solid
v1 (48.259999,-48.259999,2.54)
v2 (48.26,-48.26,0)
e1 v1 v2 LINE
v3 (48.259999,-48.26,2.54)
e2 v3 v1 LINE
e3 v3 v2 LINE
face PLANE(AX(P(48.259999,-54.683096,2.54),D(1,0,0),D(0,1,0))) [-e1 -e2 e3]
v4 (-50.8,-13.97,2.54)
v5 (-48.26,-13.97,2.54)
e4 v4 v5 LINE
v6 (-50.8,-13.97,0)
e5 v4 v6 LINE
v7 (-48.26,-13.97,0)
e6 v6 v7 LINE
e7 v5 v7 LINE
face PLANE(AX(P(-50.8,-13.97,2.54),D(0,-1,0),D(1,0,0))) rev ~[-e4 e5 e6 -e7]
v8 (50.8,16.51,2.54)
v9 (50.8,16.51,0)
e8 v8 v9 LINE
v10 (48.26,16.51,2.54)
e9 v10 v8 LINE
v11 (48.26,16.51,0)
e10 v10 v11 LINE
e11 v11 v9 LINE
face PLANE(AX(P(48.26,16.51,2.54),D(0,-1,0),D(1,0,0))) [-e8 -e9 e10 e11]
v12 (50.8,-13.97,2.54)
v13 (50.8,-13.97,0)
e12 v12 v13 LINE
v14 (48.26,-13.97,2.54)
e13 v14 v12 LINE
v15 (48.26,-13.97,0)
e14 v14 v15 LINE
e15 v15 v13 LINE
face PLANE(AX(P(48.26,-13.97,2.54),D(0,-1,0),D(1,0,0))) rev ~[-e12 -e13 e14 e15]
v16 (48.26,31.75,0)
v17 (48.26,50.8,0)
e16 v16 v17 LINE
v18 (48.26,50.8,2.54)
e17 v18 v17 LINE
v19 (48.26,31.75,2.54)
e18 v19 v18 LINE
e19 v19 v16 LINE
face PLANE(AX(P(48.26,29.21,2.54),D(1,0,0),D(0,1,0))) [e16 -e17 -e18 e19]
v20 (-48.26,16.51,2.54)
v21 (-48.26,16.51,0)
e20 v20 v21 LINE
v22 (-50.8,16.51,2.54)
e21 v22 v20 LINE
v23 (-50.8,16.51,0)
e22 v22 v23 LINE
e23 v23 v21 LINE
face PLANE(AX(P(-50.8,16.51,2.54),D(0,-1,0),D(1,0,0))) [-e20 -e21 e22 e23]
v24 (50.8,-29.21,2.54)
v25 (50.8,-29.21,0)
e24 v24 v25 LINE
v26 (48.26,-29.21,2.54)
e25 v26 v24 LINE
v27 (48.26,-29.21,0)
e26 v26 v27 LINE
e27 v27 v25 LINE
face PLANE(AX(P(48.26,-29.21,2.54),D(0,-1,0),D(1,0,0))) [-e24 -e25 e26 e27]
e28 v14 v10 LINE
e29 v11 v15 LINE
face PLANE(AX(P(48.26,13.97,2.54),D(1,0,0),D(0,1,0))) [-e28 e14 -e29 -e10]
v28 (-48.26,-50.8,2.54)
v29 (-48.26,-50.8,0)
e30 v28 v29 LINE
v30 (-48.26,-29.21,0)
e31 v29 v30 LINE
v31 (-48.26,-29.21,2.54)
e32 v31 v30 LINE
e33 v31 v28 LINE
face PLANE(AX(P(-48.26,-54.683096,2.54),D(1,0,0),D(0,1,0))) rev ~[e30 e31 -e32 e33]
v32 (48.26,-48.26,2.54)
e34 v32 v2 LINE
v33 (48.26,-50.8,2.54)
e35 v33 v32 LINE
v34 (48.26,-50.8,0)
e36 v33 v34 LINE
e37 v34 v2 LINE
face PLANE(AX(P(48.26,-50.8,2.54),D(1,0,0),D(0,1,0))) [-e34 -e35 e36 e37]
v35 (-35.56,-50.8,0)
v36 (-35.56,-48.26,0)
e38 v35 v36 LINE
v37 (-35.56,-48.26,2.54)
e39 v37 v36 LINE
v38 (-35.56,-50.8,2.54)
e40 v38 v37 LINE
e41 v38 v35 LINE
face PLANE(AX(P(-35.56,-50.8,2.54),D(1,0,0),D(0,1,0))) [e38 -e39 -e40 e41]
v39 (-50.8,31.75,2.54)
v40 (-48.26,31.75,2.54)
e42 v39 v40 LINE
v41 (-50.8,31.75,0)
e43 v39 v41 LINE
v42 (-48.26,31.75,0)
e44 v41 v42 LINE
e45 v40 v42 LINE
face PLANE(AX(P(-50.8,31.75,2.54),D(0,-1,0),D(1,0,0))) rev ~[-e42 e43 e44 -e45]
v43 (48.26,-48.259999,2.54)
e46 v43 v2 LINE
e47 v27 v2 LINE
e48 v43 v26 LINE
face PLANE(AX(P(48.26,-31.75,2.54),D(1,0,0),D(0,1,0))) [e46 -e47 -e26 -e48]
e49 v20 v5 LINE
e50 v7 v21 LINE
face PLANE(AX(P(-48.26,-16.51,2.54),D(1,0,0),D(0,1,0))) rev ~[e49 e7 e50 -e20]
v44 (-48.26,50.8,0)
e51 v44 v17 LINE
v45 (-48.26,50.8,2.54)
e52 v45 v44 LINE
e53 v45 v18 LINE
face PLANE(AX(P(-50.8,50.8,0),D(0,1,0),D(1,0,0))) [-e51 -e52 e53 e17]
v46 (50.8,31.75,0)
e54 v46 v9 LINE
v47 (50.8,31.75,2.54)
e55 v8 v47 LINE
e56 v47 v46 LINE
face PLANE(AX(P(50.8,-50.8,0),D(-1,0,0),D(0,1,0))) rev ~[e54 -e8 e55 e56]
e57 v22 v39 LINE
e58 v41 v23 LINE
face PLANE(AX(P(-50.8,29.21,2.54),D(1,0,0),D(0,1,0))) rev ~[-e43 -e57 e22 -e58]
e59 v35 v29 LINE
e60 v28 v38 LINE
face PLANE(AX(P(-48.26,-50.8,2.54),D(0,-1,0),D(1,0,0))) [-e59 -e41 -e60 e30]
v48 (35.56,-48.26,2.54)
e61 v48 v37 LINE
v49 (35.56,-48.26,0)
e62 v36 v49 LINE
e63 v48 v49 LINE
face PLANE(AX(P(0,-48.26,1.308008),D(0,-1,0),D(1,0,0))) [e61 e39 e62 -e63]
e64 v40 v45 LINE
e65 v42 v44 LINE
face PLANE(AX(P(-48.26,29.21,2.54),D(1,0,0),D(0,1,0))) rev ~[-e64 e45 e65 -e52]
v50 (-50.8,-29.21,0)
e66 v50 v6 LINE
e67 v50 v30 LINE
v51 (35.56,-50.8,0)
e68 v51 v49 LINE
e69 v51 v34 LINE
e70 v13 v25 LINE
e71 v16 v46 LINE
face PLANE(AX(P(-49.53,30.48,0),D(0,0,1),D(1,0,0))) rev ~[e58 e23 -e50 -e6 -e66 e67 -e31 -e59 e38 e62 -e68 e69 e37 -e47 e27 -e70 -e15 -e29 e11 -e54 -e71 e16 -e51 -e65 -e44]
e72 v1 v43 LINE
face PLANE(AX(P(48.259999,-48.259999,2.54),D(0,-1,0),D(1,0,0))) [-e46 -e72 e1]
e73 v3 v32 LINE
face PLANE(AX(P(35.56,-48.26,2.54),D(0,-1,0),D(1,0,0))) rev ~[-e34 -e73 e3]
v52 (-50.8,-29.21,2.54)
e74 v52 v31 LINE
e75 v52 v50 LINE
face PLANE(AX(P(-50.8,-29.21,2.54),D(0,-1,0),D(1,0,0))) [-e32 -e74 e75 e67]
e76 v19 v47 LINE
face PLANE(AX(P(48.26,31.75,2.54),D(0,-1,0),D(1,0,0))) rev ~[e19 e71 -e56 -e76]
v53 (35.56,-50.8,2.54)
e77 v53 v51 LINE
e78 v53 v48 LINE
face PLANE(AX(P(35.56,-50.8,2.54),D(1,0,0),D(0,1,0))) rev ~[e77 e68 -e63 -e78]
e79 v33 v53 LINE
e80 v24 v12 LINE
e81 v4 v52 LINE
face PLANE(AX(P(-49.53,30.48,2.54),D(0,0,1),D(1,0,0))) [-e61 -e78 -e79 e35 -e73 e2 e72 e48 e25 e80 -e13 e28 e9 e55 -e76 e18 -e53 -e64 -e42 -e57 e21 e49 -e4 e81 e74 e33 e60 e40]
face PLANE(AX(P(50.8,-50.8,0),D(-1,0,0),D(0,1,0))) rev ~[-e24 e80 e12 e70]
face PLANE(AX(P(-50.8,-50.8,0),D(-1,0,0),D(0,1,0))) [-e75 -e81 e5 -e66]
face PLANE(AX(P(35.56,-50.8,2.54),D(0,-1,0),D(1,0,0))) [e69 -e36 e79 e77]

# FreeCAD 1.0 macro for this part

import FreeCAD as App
import Part
import Sketcher
from FreeCAD import Vector
Q = App.Units.Quantity


def add_polygon(sketch, points):
    """Adds a closed chain of lines whose ends are joined by coincident constraints."""
    first, n = sketch.GeometryCount, len(points)
    for a, b in zip(points, points[1:] + points[:1]):
        sketch.addGeometry(Part.LineSegment(App.Vector(*a, 0), App.Vector(*b, 0)), False)
    for i in range(n):
        sketch.addConstraint(Sketcher.Constraint("Coincident", first + i, 2, first + (i + 1) % n, 1))

doc = App.newDocument("Part")
body = doc.addObject("PartDesign::Body", "Body")

sketch1 = body.newObject("Sketcher::SketchObject", "Sketch")
sketch1.AttachmentSupport = (doc.getObject("XY_Plane"), [""])
sketch1.MapMode = "FlatFace"
add_polygon(sketch1, [(-51, 51), (-51, -51), (51, -51), (51, 51)])
sketch1.addConstraint([
    Sketcher.Constraint("Vertical", 0),
    Sketcher.Constraint("Horizontal", 1),
    Sketcher.Constraint("Vertical", 2),
    Sketcher.Constraint("Horizontal", 3),
    Sketcher.Constraint("Symmetric", 0, 2, 2, 2, -1, 1),
    Sketcher.Constraint("Equal", 3, 0),
    Sketcher.Constraint("DistanceX", 1, 1, 1, 2, Q("4 in")),
])
pad1 = body.newObject("PartDesign::Pad", "Pad")
pad1.Profile = sketch1
pad1.Length = Q("0.1 in")

sketch2 = body.newObject("Sketcher::SketchObject", "Sketch001")
sketch2.AttachmentSupport = (doc.getObject("XZ_Plane"), [""])
sketch2.MapMode = "FlatFace"
sketch2.AttachmentOffset = App.Placement(Vector(0, 0, 2 * 25.4), App.Rotation())
add_polygon(sketch2, [(-41.9, 2.5), (-39.4, 0), (39.4, 0), (41.9, 2.5)])
sketch2.addConstraint([
    Sketcher.Constraint("Horizontal", 1),
    Sketcher.Constraint("Horizontal", 3),
    Sketcher.Constraint("Symmetric", 0, 2, 1, 2, -1, 1),
    Sketcher.Constraint("Perpendicular", 0, 2),
    Sketcher.Constraint("Equal", 0, 2),
    Sketcher.Constraint("DistanceX", 1, 1, 1, 2, Q("3.1 in")),
    Sketcher.Constraint("DistanceX", 3, 2, 3, 1, Q("3.3 in")),
])
pocket1 = body.newObject("PartDesign::Pocket", "Pocket")
pocket1.Profile = sketch2
pocket1.Length = Q("0.1 in")

sketch3 = body.newObject("Sketcher::SketchObject", "Sketch002")
sketch3.AttachmentSupport = (doc.getObject("XY_Plane"), [""])
sketch3.MapMode = "FlatFace"
sketch3.AttachmentOffset = App.Placement(Vector(0, 0, 0.1 * 25.4), App.Rotation())
add_polygon(sketch3, [(-50.8, -31.8), (-50.8, -48.3), (-48.3, -48.3), (-48.3, -31.8)])
add_polygon(sketch3, [(-50.8, 14), (-50.8, -16.5), (-48.3, -16.5), (-48.3, 14)])
add_polygon(sketch3, [(-50.8, 50.8), (-50.8, 29.2), (-48.3, 29.2), (-48.3, 50.8)])
add_polygon(sketch3, [(48.3, -31.8), (48.3, -48.3), (50.8, -48.3), (50.8, -31.8)])
add_polygon(sketch3, [(48.3, 14), (48.3, -16.5), (50.8, -16.5), (50.8, 14)])
add_polygon(sketch3, [(48.3, 50.8), (48.3, 29.2), (50.8, 29.2), (50.8, 50.8)])
sketch3.addConstraint([
    Sketcher.Constraint("Vertical", 0),
    Sketcher.Constraint("Horizontal", 1),
    Sketcher.Constraint("Vertical", 2),
    Sketcher.Constraint("Horizontal", 3),
    Sketcher.Constraint("Vertical", 4),
    Sketcher.Constraint("Horizontal", 5),
    Sketcher.Constraint("Vertical", 6),
    Sketcher.Constraint("Horizontal", 7),
    Sketcher.Constraint("Vertical", 8),
    Sketcher.Constraint("Horizontal", 9),
    Sketcher.Constraint("Vertical", 10),
    Sketcher.Constraint("Horizontal", 11),
    Sketcher.Constraint("Vertical", 12),
    Sketcher.Constraint("Horizontal", 13),
    Sketcher.Constraint("Vertical", 14),
    Sketcher.Constraint("Horizontal", 15),
    Sketcher.Constraint("Vertical", 16),
    Sketcher.Constraint("Horizontal", 17),
    Sketcher.Constraint("Vertical", 18),
    Sketcher.Constraint("Horizontal", 19),
    Sketcher.Constraint("Vertical", 20),
    Sketcher.Constraint("Horizontal", 21),
    Sketcher.Constraint("Vertical", 22),
    Sketcher.Constraint("Horizontal", 23),
    Sketcher.Constraint("Symmetric", 1, 2, 12, 2, -2),
    Sketcher.Constraint("Symmetric", 3, 2, 14, 2, -2),
    Sketcher.Constraint("Symmetric", 5, 2, 16, 2, -2),
    Sketcher.Constraint("Symmetric", 7, 2, 18, 2, -2),
    Sketcher.Constraint("Symmetric", 9, 2, 20, 2, -2),
    Sketcher.Constraint("Symmetric", 11, 2, 22, 2, -2),
    Sketcher.Constraint("Vertical", 3, 2, 4, 2),
    Sketcher.Constraint("Vertical", 2, 2, 5, 2),
    Sketcher.Constraint("Vertical", 7, 2, 8, 2),
    Sketcher.Constraint("Vertical", 6, 2, 9, 2),
    Sketcher.Constraint("DistanceX", 1, 1, 1, 2, Q("0.1 in")),
    Sketcher.Constraint("DistanceY", 4, 2, 4, 1, Q("1.2 in")),
    Sketcher.Constraint("DistanceX", 0, 2, -1, 1, Q("2 in")),
    Sketcher.Constraint("DistanceY", -1, 1, 10, 2, Q("2 in")),
    Sketcher.Constraint("DistanceY", 0, 2, 0, 1, Q("0.65 in")),
    Sketcher.Constraint("DistanceY", 8, 2, 8, 1, Q("0.85 in")),
    Sketcher.Constraint("DistanceY", 0, 2, -1, 1, Q("1.9 in")),
    Sketcher.Constraint("DistanceY", 3, 2, 4, 2, Q("0.6 in")),
])
pocket2 = body.newObject("PartDesign::Pocket", "Pocket001")
pocket2.Profile = sketch3
pocket2.Length = Q("1 in")

sketch4 = body.newObject("Sketcher::SketchObject", "Sketch003")
sketch4.AttachmentSupport = (doc.getObject("XY_Plane"), [""])
sketch4.MapMode = "FlatFace"
sketch4.AttachmentOffset = App.Placement(Vector(0, 0, 0.1 * 25.4), App.Rotation())
add_polygon(sketch4, [(48, -48), (48, -55), (56, -55), (56, -48)])
add_polygon(sketch4, [(-55, -48), (-55, -55), (-48, -55), (-48, -48)])
sketch4.addConstraint([
    Sketcher.Constraint("Vertical", 0),
    Sketcher.Constraint("Horizontal", 1),
    Sketcher.Constraint("Vertical", 2),
    Sketcher.Constraint("Horizontal", 3),
    Sketcher.Constraint("Vertical", 4),
    Sketcher.Constraint("Horizontal", 5),
    Sketcher.Constraint("Vertical", 6),
    Sketcher.Constraint("Horizontal", 7),
    Sketcher.Constraint("Symmetric", 0, 2, 5, 2, -2),
    Sketcher.Constraint("Horizontal", 3, 2, 6, 2),
    Sketcher.Constraint("DistanceX", -1, 1, 0, 2, Q("1.9 in")),
    Sketcher.Constraint("DistanceY", 2, 2, -1, 1, Q("1.9 in")),
    Sketcher.Constraint("DistanceX", 5, 1, 5, 2, Q("6.710898 mm")),
    Sketcher.Constraint("DistanceX", 1, 1, 1, 2, Q("8.149925 mm")),
    Sketcher.Constraint("DistanceY", 0, 2, 0, 1, Q("6.423097 mm")),
])
pocket3 = body.newObject("PartDesign::Pocket", "Pocket002")
pocket3.Profile = sketch4
pocket3.Length = Q("1 in")

sketch5 = body.newObject("Sketcher::SketchObject", "Sketch004")
sketch5.AttachmentSupport = (doc.getObject("XY_Plane"), [""])
sketch5.MapMode = "FlatFace"
sketch5.AttachmentOffset = App.Placement(Vector(0, 0, 0.1 * 25.4), App.Rotation())
add_polygon(sketch5, [(35.6, -48.3), (35.6, -50.8), (48.3, -50.8), (48.3, -48.3)])
add_polygon(sketch5, [(-48.3, -48.3), (-48.3, -50.8), (-35.6, -50.8), (-35.6, -48.3)])
sketch5.addConstraint([
    Sketcher.Constraint("Vertical", 0),
    Sketcher.Constraint("Horizontal", 1),
    Sketcher.Constraint("Vertical", 2),
    Sketcher.Constraint("Horizontal", 3),
    Sketcher.Constraint("Vertical", 4),
    Sketcher.Constraint("Horizontal", 5),
    Sketcher.Constraint("Vertical", 6),
    Sketcher.Constraint("Horizontal", 7),
    Sketcher.Constraint("Symmetric", 1, 2, 4, 2, -2),
    Sketcher.Constraint("Symmetric", 3, 2, 6, 2, -2),
    Sketcher.Constraint("DistanceX", 1, 1, 1, 2, Q("0.5 in")),
    Sketcher.Constraint("DistanceY", 0, 2, 0, 1, Q("0.1 in")),
    Sketcher.Constraint("DistanceY", 0, 2, -1, 1, Q("2 in")),
    Sketcher.Constraint("DistanceX", -1, 1, 0, 2, Q("1.4 in")),
])
pad2 = body.newObject("PartDesign::Pad", "Pad001")
pad2.Profile = sketch5
pad2.Length = Q("0.1 in")
pad2.Reversed = True

sketch6 = body.newObject("Sketcher::SketchObject", "Sketch005")
sketch6.AttachmentSupport = (doc.getObject("XY_Plane"), [""])
sketch6.MapMode = "FlatFace"
sketch6.AttachmentOffset = App.Placement(Vector(0, 0, 0.1 * 25.4), App.Rotation())
add_polygon(sketch6, [(-50.8, 31.8), (-50.8, 29.2), (-48.3, 29.2), (-48.3, 31.8)])
add_polygon(sketch6, [(-50.8, -14), (-50.8, -16.5), (-48.3, -16.5), (-48.3, -14)])
add_polygon(sketch6, [(48.3, -14), (48.3, -16.5), (50.8, -16.5), (50.8, -14)])
add_polygon(sketch6, [(48.3, 31.8), (48.3, 29.2), (50.8, 29.2), (50.8, 31.8)])
sketch6.addConstraint([
    Sketcher.Constraint("Vertical", 0),
    Sketcher.Constraint("Horizontal", 1),
    Sketcher.Constraint("Vertical", 2),
    Sketcher.Constraint("Horizontal", 3),
    Sketcher.Constraint("Vertical", 4),
    Sketcher.Constraint("Horizontal", 5),
    Sketcher.Constraint("Vertical", 6),
    Sketcher.Constraint("Horizontal", 7),
    Sketcher.Constraint("Vertical", 8),
    Sketcher.Constraint("Horizontal", 9),
    Sketcher.Constraint("Vertical", 10),
    Sketcher.Constraint("Horizontal", 11),
    Sketcher.Constraint("Vertical", 12),
    Sketcher.Constraint("Horizontal", 13),
    Sketcher.Constraint("Vertical", 14),
    Sketcher.Constraint("Horizontal", 15),
    Sketcher.Constraint("Symmetric", 5, 2, 8, 2, -2),
    Sketcher.Constraint("Symmetric", 7, 2, 10, 2, -2),
    Sketcher.Constraint("Symmetric", 1, 2, 12, 2, -2),
    Sketcher.Constraint("Symmetric", 3, 2, 14, 2, -2),
    Sketcher.Constraint("Vertical", 3, 2, 4, 2),
    Sketcher.Constraint("Vertical", 2, 2, 5, 2),
    Sketcher.Constraint("Equal", 15, 0),
    Sketcher.Constraint("Equal", 2, 4),
    Sketcher.Constraint("DistanceX", 1, 1, 1, 2, Q("0.1 in")),
    Sketcher.Constraint("DistanceX", 0, 2, -1, 1, Q("2 in")),
    Sketcher.Constraint("DistanceY", 4, 2, 0, 2, Q("1.8 in")),
    Sketcher.Constraint("DistanceY", -1, 1, 0, 2, Q("1.15 in")),
])
pad3 = body.newObject("PartDesign::Pad", "Pad002")
pad3.Profile = sketch6
pad3.Length = Q("0.1 in")
pad3.Reversed = True

sketch7 = body.newObject("Sketcher::SketchObject", "Sketch006")
sketch7.AttachmentSupport = (doc.getObject("XY_Plane"), [""])
sketch7.MapMode = "FlatFace"
sketch7.AttachmentOffset = App.Placement(Vector(0, 0, 0.1 * 25.4), App.Rotation())
add_polygon(sketch7, [(48.3, -29.2), (48.3, -31.8), (50.8, -31.8), (50.8, -29.2)])
add_polygon(sketch7, [(48.3, 16.5), (48.3, 14), (50.8, 14), (50.8, 16.5)])
add_polygon(sketch7, [(-50.8, -29.2), (-50.8, -31.8), (-48.3, -31.8), (-48.3, -29.2)])
add_polygon(sketch7, [(-50.8, 16.5), (-50.8, 14), (-48.3, 14), (-48.3, 16.5)])
sketch7.addConstraint([
    Sketcher.Constraint("Vertical", 0),
    Sketcher.Constraint("Horizontal", 1),
    Sketcher.Constraint("Vertical", 2),
    Sketcher.Constraint("Horizontal", 3),
    Sketcher.Constraint("Vertical", 4),
    Sketcher.Constraint("Horizontal", 5),
    Sketcher.Constraint("Vertical", 6),
    Sketcher.Constraint("Horizontal", 7),
    Sketcher.Constraint("Vertical", 8),
    Sketcher.Constraint("Horizontal", 9),
    Sketcher.Constraint("Vertical", 10),
    Sketcher.Constraint("Horizontal", 11),
    Sketcher.Constraint("Vertical", 12),
    Sketcher.Constraint("Horizontal", 13),
    Sketcher.Constraint("Vertical", 14),
    Sketcher.Constraint("Horizontal", 15),
    Sketcher.Constraint("Symmetric", 1, 2, 8, 2, -2),
    Sketcher.Constraint("Symmetric", 3, 2, 10, 2, -2),
    Sketcher.Constraint("Symmetric", 5, 2, 12, 2, -2),
    Sketcher.Constraint("Symmetric", 7, 2, 14, 2, -2),
    Sketcher.Constraint("Vertical", 3, 2, 4, 2),
    Sketcher.Constraint("Vertical", 2, 2, 5, 2),
    Sketcher.Constraint("Equal", 15, 0),
    Sketcher.Constraint("Equal", 2, 4),
    Sketcher.Constraint("DistanceX", 1, 1, 1, 2, Q("0.1 in")),
    Sketcher.Constraint("DistanceX", -1, 1, 1, 2, Q("2 in")),
    Sketcher.Constraint("DistanceY", 3, 2, 4, 2, Q("1.7 in")),
    Sketcher.Constraint("DistanceY", 0, 2, -1, 1, Q("1.25 in")),
])
pocket4 = body.newObject("PartDesign::Pocket", "Pocket003")
pocket4.Profile = sketch7
pocket4.Length = Q("1 in")

doc.recompute()
